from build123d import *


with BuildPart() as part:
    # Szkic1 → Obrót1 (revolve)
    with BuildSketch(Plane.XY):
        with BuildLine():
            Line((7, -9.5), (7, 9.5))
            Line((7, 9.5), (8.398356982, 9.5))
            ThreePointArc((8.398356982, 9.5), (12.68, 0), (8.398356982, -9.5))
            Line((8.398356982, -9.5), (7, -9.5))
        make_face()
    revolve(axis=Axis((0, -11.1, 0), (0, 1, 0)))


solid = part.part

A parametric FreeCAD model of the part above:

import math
import FreeCAD as App
import Part
import Sketcher
Q = App.Units.Quantity

doc = App.newDocument("Part")
body = doc.addObject("PartDesign::Body", "Body")

sketch1 = body.newObject("Sketcher::SketchObject", "Sketch")
sketch1.AttachmentSupport = (doc.getObject("XY_Plane"), [""])
sketch1.MapMode = "FlatFace"
sketch1.addGeometry([
    Part.LineSegment(App.Vector(7, 9.5, 0), App.Vector(7, -9.5, 0)),
    Part.LineSegment(App.Vector(7, -9.5, 0), App.Vector(8.4, -9.5, 0)),
    Part.ArcOfCircle(Part.Circle(App.Vector(0, 0, 0), App.Vector(0, 0, 1), 12.7), math.radians(-49), math.radians(49)),
    Part.LineSegment(App.Vector(8.4, 9.5, 0), App.Vector(7, 9.5, 0)),
], False)
sketch1.addConstraint([
    Sketcher.Constraint("Coincident", 0, 2, 1, 1),
    Sketcher.Constraint("Coincident", 1, 2, 2, 1),
    Sketcher.Constraint("Coincident", 2, 2, 3, 1),
    Sketcher.Constraint("Coincident", 3, 2, 0, 1),
    Sketcher.Constraint("Vertical", 0),
    Sketcher.Constraint("Horizontal", 1),
    Sketcher.Constraint("Horizontal", 3),
    Sketcher.Constraint("Coincident", 2, 3, -1, 1),
    Sketcher.Constraint("Vertical", 1, 2, 2, 2),
    Sketcher.Constraint("DistanceY", 0, 2, 0, 1, Q("19 mm")),
    Sketcher.Constraint("Radius", 2, Q("12.68 mm")),
    Sketcher.Constraint("DistanceX", -1, 1, 0, 2, Q("7 mm")),
])
revolution = body.newObject("PartDesign::Revolution", "Revolution")
revolution.Profile = sketch1
revolution.ReferenceAxis = (sketch1, ["V_Axis"])
revolution.Angle = 360

doc.recompute()
